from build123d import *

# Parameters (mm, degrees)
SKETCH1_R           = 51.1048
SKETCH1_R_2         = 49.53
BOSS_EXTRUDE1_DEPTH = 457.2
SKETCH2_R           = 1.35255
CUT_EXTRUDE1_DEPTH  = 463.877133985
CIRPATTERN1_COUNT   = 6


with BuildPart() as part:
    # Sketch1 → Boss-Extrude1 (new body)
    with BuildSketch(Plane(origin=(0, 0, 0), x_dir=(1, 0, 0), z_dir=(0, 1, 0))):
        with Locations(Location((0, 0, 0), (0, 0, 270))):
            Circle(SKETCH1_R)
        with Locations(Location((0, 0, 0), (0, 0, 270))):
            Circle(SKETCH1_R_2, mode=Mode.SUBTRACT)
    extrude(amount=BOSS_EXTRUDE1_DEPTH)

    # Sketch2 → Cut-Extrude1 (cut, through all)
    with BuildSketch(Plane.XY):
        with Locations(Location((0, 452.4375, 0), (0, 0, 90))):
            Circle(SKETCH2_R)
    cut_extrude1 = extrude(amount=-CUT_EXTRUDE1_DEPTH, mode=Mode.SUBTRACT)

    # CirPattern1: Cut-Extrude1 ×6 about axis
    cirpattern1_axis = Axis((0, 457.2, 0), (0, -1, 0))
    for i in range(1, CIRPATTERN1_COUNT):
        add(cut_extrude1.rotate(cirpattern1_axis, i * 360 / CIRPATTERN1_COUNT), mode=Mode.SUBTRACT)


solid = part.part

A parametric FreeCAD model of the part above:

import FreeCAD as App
import Part
import Sketcher
from FreeCAD import Vector
Q = App.Units.Quantity

doc = App.newDocument("Part")
params = doc.addObject("Spreadsheet::Sheet", "Params")
for row, (alias, value) in enumerate([
    ("sketch1_diameter", "3.9 in"),
    ("sketch1_diameter2", "4.024 in"),
    ("pad1_length", "18 in"),
], start=1):
    params.set(f"A{row}", alias)
    params.set(f"B{row}", "=" + value)
    params.setAlias(f"B{row}", alias)

body = doc.addObject("PartDesign::Body", "Body")

# Sketch on XZ plane
sketch1 = doc.addObject("Sketcher::SketchObject", "Sketch")
body.addObject(sketch1)
sketch1.AttachmentSupport = (doc.XZ_Plane, [""])
sketch1.MapMode = "FlatFace"
sketch1.addGeometry([
    Part.Circle(Vector(0, 0, 0), Vector(0, 0, 1), 51),
    Part.Circle(Vector(0, 0, 0), Vector(0, 0, 1), 50),
], False)
sketch1.addConstraint([
    Sketcher.Constraint("Coincident", 0, 3, -1, 1),
    Sketcher.Constraint("Coincident", 1, 3, -1, 1),
    Sketcher.Constraint("Diameter", 1, Q("3.9 in")),
    Sketcher.Constraint("Diameter", 0, Q("4.024 in")),
])
sketch1.setExpression("Constraints[2]", "Params.sketch1_diameter")
sketch1.setExpression("Constraints[3]", "Params.sketch1_diameter2")
pad1 = doc.addObject("PartDesign::Pad", "Pad")
body.addObject(pad1)
pad1.Profile = sketch1
pad1.setExpression("Length", "Params.pad1_length")
pad1.Reversed = True

# Sketch on XY plane
sketch2 = doc.addObject("Sketcher::SketchObject", "Sketch001")
body.addObject(sketch2)
sketch2.AttachmentSupport = (doc.XY_Plane, [""])
sketch2.MapMode = "FlatFace"
sketch2.addGeometry(Part.Circle(Vector(0, 452.4, 0), Vector(0, 0, 1), 1.4), False)
sketch2.addConstraint([
    Sketcher.Constraint("PointOnObject", 0, 3, -2),
    Sketcher.Constraint("Diameter", 0, Q("0.1065 in")),
    Sketcher.Constraint("DistanceY", -1, 1, 0, 3, Q("17.8125 in")),
])
pocket1 = doc.addObject("PartDesign::Pocket", "Pocket")
body.addObject(pocket1)
pocket1.Profile = sketch2
pocket1.Type = "ThroughAll"
doc.recompute()

polarpattern = doc.addObject("PartDesign::PolarPattern", "PolarPattern")
body.addObject(polarpattern)
polarpattern.Originals = [pocket1]
polarpattern.Axis = (doc.Y_Axis, [""])
polarpattern.Angle = 360
polarpattern.Occurrences = 6
body.Tip = polarpattern

doc.recompute()
